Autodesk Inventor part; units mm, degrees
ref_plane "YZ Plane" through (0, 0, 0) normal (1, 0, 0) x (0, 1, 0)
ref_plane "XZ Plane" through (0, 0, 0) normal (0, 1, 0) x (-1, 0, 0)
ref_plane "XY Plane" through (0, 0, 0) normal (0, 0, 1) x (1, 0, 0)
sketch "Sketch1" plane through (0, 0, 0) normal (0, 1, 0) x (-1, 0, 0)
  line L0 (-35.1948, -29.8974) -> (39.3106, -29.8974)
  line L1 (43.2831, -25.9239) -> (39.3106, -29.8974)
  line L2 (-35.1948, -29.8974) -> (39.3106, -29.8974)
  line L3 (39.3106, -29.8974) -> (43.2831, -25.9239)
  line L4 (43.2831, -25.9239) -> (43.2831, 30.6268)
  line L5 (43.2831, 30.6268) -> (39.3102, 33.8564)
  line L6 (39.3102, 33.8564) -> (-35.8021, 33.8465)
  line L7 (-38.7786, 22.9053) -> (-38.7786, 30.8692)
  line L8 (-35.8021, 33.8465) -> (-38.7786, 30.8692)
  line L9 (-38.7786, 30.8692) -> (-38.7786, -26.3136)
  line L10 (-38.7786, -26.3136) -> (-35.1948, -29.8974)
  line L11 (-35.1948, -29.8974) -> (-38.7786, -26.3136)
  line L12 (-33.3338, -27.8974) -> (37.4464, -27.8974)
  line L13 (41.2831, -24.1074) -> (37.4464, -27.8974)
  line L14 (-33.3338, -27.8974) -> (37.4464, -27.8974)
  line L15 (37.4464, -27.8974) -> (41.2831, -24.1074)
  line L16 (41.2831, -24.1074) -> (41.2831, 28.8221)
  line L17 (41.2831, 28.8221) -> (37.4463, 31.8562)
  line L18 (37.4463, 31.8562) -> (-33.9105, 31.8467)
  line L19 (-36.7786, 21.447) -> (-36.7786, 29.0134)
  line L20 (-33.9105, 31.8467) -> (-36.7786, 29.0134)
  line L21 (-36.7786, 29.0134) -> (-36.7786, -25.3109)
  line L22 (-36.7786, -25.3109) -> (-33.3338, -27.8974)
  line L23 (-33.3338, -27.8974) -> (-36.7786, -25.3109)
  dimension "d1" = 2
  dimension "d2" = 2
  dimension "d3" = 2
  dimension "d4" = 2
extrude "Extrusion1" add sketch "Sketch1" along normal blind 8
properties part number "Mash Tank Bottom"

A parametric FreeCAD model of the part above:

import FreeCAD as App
import Part
import Sketcher
from FreeCAD import Vector


def add_polygon(sketch, points):
    """Adds a closed chain of lines whose ends are joined by coincident constraints."""
    first, n = sketch.GeometryCount, len(points)
    for a, b in zip(points, points[1:] + points[:1]):
        sketch.addGeometry(Part.LineSegment(App.Vector(*a, 0), App.Vector(*b, 0)), False)
    for i in range(n):
        sketch.addConstraint(Sketcher.Constraint("Coincident", first + i, 2, first + (i + 1) % n, 1))

doc = App.newDocument("Part")
body = doc.addObject("PartDesign::Body", "Body")

# Sketch on XZ plane
sketch1 = doc.addObject("Sketcher::SketchObject", "Sketch")
body.addObject(sketch1)
sketch1.AttachmentSupport = (doc.XZ_Plane, [""])
sketch1.MapMode = "FlatFace"
add_polygon(sketch1, [(38.7786, -26.3136), (35.1948, -29.8974), (-39.3106, -29.8974), (-43.2831, -25.9239), (-43.2831, 30.6268), (-39.3102, 33.8564), (35.8021, 33.8465), (38.7786, 30.8692)])  # lines 0-7
add_polygon(sketch1, [(-37.4464, -27.8974), (33.3338, -27.8974), (36.7786, -25.3109), (36.7786, 29.0134), (33.9105, 31.8467), (-37.4463, 31.8562), (-41.2831, 28.8221), (-41.2831, -24.1074)])  # lines 8-15
sketch1.addConstraint([
    Sketcher.Constraint("Horizontal", 1),
    Sketcher.Constraint("Vertical", 3),
    Sketcher.Constraint("Vertical", 7),
    Sketcher.Constraint("Horizontal", 8),
    Sketcher.Constraint("Vertical", 10),
    Sketcher.Constraint("Vertical", 14),
    Sketcher.Constraint("DistanceY", 0, 2, 8, 2, 2.0),
    Sketcher.Constraint("DistanceX", 9, 2, 7, 2, 2.0),
    Sketcher.Constraint("DistanceX", 3, 2, 13, 2, 2.0),
    Sketcher.Constraint("DistanceY", 11, 2, 5, 2, 1.9998),
    Sketcher.Constraint("DistanceY", 12, 2, 4, 2, 2.0002),
    Sketcher.Constraint("Distance", 4, 5.12),
    Sketcher.Constraint("Distance", 6, 4.21),
    Sketcher.Constraint("DistanceY", 5, 2, 4, 2, 0.01),
    Sketcher.Constraint("DistanceY", 7, 2, 5, 2, 60.16),
    Sketcher.Constraint("DistanceY", 9, 2, 6, 2, 56.18),
    Sketcher.Constraint("DistanceY", 2, 2, 12, 2, 57.78),
    Sketcher.Constraint("DistanceY", 1, 2, 14, 2, 5.79),
    Sketcher.Constraint("Distance", 15, 5.393),
    Sketcher.Constraint("DistanceX", 1, 2, 1, 1, 74.5054),
    Sketcher.Constraint("DistanceX", 8, 1, 8, 2, 70.7802),
    Sketcher.Constraint("DistanceY", 3, 1, 3, 2, 56.5507),
    Sketcher.Constraint("DistanceY", 7, 2, 7, 1, 57.1828),
    Sketcher.Constraint("DistanceY", 10, 1, 10, 2, 54.3243),
    Sketcher.Constraint("DistanceY", 14, 2, 14, 1, 52.9295),
    Sketcher.Constraint("DistanceX", 2, 2, -1, 1, 43.283),
    Sketcher.Constraint("DistanceY", 2, 2, -1, 1, 25.924),
    Sketcher.Constraint("DistanceX", -1, 1, 5, 2, 35.802),
    Sketcher.Constraint("DistanceY", -1, 1, 13, 2, 28.822),
    Sketcher.Constraint("DistanceX", 2, 2, 0, 2, 78.478),
    Sketcher.Constraint("DistanceX", 11, 2, 10, 2, 2.868),
    Sketcher.Constraint("DistanceX", 4, 2, 12, 2, 1.864),
])
pad1 = doc.addObject("PartDesign::Pad", "Pad")
body.addObject(pad1)
pad1.Profile = sketch1
pad1.Length = 8
pad1.Reversed = True

doc.recompute()
